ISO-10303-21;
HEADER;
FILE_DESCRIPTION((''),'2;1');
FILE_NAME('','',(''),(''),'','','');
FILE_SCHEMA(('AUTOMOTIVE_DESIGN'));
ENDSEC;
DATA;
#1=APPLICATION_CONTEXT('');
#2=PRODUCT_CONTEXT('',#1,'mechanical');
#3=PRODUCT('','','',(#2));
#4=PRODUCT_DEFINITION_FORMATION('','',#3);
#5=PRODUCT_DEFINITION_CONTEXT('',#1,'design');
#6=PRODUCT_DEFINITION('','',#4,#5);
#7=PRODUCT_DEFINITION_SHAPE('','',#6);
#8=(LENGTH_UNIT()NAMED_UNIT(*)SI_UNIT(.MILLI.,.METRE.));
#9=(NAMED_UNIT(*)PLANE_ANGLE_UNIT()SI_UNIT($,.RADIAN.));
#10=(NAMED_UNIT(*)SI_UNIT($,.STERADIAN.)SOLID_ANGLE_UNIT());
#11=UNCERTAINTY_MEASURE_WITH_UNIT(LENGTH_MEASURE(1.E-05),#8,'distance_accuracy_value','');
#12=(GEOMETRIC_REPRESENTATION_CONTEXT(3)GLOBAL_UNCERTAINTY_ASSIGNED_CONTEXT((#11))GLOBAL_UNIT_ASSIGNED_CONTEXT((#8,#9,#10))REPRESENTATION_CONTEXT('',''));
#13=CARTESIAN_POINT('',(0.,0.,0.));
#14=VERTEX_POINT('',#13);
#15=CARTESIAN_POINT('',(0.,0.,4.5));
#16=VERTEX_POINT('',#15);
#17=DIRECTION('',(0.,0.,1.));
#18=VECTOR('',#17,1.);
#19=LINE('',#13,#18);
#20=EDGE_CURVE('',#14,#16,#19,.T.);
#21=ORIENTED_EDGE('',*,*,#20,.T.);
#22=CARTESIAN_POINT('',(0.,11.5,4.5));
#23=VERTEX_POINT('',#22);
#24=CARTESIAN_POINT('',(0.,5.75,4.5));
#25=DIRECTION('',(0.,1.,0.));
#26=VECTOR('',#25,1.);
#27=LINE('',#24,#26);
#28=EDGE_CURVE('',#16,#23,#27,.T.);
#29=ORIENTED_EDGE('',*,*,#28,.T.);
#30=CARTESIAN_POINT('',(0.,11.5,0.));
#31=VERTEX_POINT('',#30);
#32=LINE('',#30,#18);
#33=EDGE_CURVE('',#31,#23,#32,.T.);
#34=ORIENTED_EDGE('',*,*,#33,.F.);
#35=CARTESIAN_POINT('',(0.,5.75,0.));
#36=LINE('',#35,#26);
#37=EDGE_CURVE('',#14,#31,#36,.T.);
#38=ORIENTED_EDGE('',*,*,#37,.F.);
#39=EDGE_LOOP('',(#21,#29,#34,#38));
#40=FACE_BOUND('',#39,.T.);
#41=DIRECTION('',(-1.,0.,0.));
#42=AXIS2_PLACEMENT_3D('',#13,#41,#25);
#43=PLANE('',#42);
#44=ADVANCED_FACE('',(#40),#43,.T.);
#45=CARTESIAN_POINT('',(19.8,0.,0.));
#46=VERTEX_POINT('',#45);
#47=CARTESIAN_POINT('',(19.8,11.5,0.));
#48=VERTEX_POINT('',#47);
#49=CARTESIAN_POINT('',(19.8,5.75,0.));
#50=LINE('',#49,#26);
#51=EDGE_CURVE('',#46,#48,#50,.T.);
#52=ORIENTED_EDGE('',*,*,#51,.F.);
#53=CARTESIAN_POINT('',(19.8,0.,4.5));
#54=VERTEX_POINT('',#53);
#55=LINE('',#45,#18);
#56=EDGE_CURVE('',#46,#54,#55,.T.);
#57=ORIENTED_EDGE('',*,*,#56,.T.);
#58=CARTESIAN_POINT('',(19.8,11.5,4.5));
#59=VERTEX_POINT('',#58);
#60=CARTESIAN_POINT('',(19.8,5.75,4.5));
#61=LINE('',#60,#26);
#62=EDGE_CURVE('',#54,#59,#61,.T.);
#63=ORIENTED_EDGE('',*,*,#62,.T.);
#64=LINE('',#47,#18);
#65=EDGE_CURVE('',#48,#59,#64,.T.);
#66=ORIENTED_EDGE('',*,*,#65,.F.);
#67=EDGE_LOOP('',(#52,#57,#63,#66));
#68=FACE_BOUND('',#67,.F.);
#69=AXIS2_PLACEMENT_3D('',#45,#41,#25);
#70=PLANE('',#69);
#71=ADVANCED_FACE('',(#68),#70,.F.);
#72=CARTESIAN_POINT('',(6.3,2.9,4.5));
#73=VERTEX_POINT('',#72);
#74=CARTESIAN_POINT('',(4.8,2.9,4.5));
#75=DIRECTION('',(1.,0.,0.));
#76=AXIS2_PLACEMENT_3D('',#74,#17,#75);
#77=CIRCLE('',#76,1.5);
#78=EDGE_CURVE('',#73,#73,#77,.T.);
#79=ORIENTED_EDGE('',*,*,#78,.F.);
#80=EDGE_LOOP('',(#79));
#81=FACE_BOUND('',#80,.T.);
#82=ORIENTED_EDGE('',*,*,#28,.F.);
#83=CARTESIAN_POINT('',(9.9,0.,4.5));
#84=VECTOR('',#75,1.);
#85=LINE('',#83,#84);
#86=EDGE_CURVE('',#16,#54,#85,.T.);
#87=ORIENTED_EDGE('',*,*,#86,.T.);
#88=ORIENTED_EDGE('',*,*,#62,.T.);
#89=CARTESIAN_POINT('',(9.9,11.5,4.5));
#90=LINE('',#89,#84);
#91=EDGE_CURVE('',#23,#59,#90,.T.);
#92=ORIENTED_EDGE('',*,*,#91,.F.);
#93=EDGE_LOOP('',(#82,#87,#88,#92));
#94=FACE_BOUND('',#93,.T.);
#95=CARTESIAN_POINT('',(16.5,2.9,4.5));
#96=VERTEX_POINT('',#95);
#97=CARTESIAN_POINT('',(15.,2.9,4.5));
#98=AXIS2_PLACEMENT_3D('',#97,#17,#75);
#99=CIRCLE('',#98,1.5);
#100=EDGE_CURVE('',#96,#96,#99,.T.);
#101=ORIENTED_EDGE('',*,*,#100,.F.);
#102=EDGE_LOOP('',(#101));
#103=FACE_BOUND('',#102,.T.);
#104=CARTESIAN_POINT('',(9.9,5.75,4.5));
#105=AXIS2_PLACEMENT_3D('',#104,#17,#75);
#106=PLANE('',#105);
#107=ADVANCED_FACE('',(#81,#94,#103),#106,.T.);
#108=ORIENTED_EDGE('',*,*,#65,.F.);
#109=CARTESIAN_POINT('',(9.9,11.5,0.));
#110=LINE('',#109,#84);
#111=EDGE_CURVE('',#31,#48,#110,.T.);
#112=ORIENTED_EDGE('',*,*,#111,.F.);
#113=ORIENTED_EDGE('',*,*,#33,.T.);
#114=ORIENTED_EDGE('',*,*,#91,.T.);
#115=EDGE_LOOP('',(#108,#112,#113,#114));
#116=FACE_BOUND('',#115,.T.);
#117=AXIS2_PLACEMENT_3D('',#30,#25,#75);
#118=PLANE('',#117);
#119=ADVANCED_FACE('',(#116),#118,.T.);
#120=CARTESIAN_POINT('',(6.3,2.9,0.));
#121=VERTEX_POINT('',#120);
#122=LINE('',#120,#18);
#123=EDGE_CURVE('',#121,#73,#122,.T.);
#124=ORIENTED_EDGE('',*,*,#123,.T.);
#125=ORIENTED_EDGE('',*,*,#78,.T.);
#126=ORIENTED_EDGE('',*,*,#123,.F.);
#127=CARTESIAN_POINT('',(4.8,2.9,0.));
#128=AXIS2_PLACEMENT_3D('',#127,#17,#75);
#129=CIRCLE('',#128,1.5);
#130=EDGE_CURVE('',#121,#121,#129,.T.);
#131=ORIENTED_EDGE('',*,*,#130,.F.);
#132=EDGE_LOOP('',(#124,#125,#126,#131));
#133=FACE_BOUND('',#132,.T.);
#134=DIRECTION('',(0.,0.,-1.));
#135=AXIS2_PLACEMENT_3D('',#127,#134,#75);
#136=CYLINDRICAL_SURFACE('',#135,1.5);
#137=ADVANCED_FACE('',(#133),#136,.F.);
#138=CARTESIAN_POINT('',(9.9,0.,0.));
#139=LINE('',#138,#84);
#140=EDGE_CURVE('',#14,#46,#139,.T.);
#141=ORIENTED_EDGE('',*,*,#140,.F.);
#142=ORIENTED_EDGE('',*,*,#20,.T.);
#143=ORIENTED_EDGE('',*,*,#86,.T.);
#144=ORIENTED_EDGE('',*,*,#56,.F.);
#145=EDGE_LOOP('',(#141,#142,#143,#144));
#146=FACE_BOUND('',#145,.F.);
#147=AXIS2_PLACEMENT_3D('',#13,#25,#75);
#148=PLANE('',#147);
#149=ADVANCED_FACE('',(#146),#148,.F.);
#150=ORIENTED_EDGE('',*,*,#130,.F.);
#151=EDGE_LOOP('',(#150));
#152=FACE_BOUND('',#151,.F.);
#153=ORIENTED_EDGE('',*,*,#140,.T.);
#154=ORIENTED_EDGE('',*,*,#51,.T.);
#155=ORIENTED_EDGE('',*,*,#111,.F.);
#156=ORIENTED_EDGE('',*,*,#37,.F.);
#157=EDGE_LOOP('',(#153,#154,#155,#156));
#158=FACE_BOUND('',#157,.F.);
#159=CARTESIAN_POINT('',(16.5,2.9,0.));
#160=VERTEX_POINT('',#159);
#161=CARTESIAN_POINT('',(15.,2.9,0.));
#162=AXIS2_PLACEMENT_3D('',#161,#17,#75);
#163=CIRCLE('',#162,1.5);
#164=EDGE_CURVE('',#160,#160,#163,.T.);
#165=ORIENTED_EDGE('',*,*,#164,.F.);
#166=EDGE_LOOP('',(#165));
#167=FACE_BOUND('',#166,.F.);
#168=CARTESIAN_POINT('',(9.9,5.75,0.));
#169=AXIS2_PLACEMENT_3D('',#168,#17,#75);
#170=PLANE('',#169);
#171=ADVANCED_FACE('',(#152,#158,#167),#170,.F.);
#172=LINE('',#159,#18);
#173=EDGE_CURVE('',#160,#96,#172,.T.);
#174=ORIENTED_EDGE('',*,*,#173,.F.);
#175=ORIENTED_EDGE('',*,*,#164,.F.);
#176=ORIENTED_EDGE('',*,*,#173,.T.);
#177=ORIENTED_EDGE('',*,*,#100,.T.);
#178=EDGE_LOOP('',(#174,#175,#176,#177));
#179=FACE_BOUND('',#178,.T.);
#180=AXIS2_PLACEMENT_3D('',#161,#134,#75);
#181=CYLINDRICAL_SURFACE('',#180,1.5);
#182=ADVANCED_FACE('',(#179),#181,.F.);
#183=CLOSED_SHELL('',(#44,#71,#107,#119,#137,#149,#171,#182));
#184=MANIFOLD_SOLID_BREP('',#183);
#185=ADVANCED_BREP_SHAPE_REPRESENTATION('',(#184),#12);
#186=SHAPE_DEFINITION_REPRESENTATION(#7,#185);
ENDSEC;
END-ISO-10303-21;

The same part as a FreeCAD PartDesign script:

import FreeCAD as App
import Part
import Sketcher

V = App.Vector
Q = App.Units.Quantity


def add_polygon(sketch, points):
    """Adds a closed chain of lines whose ends are joined by coincident constraints."""
    first, n = sketch.GeometryCount, len(points)
    for a, b in zip(points, points[1:] + points[:1]):
        sketch.addGeometry(Part.LineSegment(App.Vector(*a, 0), App.Vector(*b, 0)), False)
    for i in range(n):
        sketch.addConstraint(Sketcher.Constraint("Coincident", first + i, 2, first + (i + 1) % n, 1))

doc = App.newDocument("Part")
params = doc.addObject("Spreadsheet::Sheet", "Params")
for row, (alias, value) in enumerate([
    ("sketch1_diameter", "3 mm"),
    ("sketch1_width", "19.8 mm"),
    ("sketch1_height", "11.5 mm"),
    ("pad1_length", "4.5 mm"),
], start=1):
    params.set(f"A{row}", alias)
    params.set(f"B{row}", "=" + value)
    params.setAlias(f"B{row}", alias)

body = doc.addObject("PartDesign::Body", "Body")

sketch1 = body.newObject("Sketcher::SketchObject", "Sketch")
sketch1.AttachmentSupport = (doc.getObject("XY_Plane"), [""])
sketch1.MapMode = "FlatFace"
add_polygon(sketch1, [(0, 11.5), (0, 0), (19.8, 0), (19.8, 11.5)])
sketch1.addGeometry(Part.Circle(V(4.8, 2.9, 0), V(0, 0, 1), 1.5), False)
sketch1.addGeometry(Part.Circle(V(15, 2.9, 0), V(0, 0, 1), 1.5), False)
sketch1.addConstraint([
    Sketcher.Constraint("Vertical", 0),
    Sketcher.Constraint("Horizontal", 1),
    Sketcher.Constraint("Vertical", 2),
    Sketcher.Constraint("Horizontal", 3),
    Sketcher.Constraint("Coincident", 0, 2, -1, 1),
    Sketcher.Constraint("Equal", 4, 5),
    Sketcher.Constraint("Horizontal", 4, 3, 5, 3),
    Sketcher.Constraint("Diameter", 4, Q("3 mm")),
    Sketcher.Constraint("DistanceX", 1, 1, 1, 2, Q("19.8 mm")),
    Sketcher.Constraint("DistanceY", 0, 2, 0, 1, Q("11.5 mm")),
    Sketcher.Constraint("DistanceX", -1, 1, 5, 3, Q("15 mm")),
    Sketcher.Constraint("DistanceX", 4, 3, 1, 2, Q("15 mm")),
    Sketcher.Constraint("DistanceY", -1, 1, 4, 3, Q("2.9 mm")),
])
sketch1.setExpression("Constraints[11]", "Params.sketch1_diameter")
sketch1.setExpression("Constraints[12]", "Params.sketch1_width")
sketch1.setExpression("Constraints[13]", "Params.sketch1_height")
pad1 = body.newObject("PartDesign::Pad", "Pad")
pad1.Profile = sketch1
pad1.setExpression("Length", "Params.pad1_length")

doc.recompute()
